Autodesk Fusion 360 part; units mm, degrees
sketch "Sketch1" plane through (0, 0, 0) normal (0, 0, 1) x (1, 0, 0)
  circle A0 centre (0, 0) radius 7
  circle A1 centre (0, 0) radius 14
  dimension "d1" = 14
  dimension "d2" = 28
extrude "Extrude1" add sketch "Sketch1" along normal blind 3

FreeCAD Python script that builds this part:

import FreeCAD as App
import Part
import Sketcher
Q = App.Units.Quantity

doc = App.newDocument("Part")
body = doc.addObject("PartDesign::Body", "Body")

sketch1 = doc.addObject("Sketcher::SketchObject", "Sketch")
body.addObject(sketch1)
sketch1.AttachmentSupport = (doc.XY_Plane, [""])
sketch1.MapMode = "FlatFace"
sketch1.addGeometry(Part.Circle(App.Vector(0, 0, 0), App.Vector(0, 0, 1), 14), False)
sketch1.addGeometry(Part.Circle(App.Vector(0, 0, 0), App.Vector(0, 0, 1), 7), False)
sketch1.addConstraint(Sketcher.Constraint("Coincident", 0, 3, -1, 1))
sketch1.addConstraint(Sketcher.Constraint("Coincident", 1, 3, -1, 1))
sketch1.addConstraint(Sketcher.Constraint("Diameter", 0, Q("28 mm")))
sketch1.addConstraint(Sketcher.Constraint("Diameter", 1, Q("14 mm")))
pad1 = doc.addObject("PartDesign::Pad", "Pad")
body.addObject(pad1)
pad1.Profile = sketch1
pad1.Length = 3

doc.recompute()
